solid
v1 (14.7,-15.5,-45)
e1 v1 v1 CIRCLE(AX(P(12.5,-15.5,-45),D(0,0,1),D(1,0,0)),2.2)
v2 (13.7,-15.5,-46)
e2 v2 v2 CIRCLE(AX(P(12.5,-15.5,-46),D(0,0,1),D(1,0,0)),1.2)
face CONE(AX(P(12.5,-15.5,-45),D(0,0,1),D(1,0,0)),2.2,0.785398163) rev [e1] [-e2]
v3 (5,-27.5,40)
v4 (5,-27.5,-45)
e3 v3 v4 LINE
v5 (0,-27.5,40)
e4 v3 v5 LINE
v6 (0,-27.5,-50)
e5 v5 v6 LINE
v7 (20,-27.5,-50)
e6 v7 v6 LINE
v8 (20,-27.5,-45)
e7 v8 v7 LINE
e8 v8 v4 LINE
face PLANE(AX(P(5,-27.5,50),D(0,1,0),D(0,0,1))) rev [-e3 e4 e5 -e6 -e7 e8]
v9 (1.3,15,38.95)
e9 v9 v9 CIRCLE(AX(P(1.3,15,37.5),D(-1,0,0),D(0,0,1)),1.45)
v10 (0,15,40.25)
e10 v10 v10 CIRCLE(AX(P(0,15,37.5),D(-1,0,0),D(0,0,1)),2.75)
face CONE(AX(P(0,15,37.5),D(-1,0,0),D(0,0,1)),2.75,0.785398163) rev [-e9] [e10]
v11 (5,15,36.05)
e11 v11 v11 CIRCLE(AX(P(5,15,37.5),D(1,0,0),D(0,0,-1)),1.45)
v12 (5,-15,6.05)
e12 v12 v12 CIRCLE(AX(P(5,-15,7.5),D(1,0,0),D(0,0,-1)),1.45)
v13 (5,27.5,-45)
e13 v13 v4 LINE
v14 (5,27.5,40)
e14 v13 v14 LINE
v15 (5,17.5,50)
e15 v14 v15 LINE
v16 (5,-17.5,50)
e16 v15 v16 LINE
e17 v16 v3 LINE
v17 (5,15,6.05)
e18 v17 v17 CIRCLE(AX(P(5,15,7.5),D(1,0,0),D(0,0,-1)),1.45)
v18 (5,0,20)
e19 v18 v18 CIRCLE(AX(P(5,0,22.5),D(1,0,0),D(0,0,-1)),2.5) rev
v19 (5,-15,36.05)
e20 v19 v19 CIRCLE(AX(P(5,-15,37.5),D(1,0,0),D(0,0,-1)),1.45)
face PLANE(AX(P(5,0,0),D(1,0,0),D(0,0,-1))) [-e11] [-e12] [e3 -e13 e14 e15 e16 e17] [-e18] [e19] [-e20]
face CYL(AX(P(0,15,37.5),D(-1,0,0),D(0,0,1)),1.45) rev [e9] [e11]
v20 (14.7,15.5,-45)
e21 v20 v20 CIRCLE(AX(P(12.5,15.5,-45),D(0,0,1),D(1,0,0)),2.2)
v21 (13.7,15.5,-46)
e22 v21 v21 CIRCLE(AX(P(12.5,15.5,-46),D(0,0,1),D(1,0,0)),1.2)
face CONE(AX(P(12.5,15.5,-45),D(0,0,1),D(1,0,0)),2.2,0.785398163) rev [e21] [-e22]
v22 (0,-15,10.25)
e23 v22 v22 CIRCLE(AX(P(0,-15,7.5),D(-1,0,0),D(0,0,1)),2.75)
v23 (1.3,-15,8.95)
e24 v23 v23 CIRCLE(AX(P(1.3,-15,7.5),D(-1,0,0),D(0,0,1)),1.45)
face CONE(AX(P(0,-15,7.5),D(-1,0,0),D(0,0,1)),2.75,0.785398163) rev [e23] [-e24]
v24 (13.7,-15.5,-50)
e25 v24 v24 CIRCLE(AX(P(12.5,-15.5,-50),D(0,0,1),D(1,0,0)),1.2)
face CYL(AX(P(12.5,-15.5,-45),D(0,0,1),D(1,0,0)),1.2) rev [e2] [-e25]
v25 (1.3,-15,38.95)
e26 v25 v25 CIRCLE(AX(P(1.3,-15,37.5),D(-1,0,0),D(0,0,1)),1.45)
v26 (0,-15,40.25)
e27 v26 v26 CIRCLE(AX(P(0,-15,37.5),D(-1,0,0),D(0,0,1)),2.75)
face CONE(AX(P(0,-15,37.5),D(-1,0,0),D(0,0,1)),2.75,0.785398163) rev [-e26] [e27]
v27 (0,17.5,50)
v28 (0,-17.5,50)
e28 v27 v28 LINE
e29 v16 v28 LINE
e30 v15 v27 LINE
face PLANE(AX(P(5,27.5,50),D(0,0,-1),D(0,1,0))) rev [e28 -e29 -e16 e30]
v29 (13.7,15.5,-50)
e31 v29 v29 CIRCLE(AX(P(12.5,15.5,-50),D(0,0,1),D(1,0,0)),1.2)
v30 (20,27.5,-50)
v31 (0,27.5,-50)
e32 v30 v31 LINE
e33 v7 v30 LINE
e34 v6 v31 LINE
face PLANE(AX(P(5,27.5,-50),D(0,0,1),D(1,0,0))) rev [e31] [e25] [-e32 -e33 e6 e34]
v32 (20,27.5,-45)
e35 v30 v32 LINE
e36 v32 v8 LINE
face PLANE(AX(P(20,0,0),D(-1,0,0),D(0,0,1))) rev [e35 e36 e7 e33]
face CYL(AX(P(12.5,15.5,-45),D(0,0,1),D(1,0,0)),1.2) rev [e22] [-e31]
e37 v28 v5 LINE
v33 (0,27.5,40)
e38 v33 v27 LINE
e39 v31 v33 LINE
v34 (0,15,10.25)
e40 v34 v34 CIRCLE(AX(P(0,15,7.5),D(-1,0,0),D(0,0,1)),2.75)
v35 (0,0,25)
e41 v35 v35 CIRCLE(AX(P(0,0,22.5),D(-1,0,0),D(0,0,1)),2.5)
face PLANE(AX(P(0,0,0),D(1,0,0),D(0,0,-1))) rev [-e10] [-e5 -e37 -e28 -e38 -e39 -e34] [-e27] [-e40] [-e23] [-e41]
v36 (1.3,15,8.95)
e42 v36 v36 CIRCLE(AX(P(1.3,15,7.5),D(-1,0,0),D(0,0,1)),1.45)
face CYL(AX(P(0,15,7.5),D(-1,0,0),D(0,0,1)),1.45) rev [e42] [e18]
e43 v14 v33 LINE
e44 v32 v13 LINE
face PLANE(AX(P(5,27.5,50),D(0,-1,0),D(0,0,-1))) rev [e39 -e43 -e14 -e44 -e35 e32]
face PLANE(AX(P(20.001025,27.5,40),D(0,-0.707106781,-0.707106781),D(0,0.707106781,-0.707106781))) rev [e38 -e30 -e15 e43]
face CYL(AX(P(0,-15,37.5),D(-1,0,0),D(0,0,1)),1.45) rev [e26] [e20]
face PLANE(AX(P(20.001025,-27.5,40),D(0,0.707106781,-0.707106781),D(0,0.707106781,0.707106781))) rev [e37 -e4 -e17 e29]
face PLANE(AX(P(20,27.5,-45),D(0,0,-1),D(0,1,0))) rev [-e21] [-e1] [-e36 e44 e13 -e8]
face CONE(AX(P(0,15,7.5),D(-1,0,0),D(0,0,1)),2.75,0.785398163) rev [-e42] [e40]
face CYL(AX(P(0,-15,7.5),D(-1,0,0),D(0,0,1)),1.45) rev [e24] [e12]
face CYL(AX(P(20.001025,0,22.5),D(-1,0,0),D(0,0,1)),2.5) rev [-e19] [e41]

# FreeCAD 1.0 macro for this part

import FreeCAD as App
import Part
import Sketcher

V = App.Vector
Q = App.Units.Quantity

doc = App.newDocument("Part")
body = doc.addObject("PartDesign::Body", "Body")

# Sketch on YZ plane
sketch1 = doc.addObject("Sketcher::SketchObject", "Sketch")
body.addObject(sketch1)
sketch1.AttachmentSupport = (doc.YZ_Plane, [""])
sketch1.MapMode = "FlatFace"
sketch1.addGeometry([
    Part.LineSegment(V(28, 50, 0), V(-28, 50, 0)),
    Part.LineSegment(V(-28, 50, 0), V(-28, -50, 0)),
    Part.LineSegment(V(-28, -50, 0), V(28, -50, 0)),
    Part.LineSegment(V(28, -50, 0), V(28, 50, 0)),
], False)
sketch1.addConstraint([
    Sketcher.Constraint("Coincident", 0, 2, 1, 1),
    Sketcher.Constraint("Coincident", 1, 2, 2, 1),
    Sketcher.Constraint("Coincident", 2, 2, 3, 1),
    Sketcher.Constraint("Coincident", 3, 2, 0, 1),
    Sketcher.Constraint("Horizontal", 0),
    Sketcher.Constraint("Vertical", 1),
    Sketcher.Constraint("Horizontal", 2),
    Sketcher.Constraint("Vertical", 3),
    Sketcher.Constraint("Symmetric", 0, 2, 2, 2, -1, 1),
    Sketcher.Constraint("DistanceX", 0, 2, 0, 1, Q("55 mm")),
    Sketcher.Constraint("DistanceY", 1, 2, 1, 1, Q("100 mm")),
])
pad1 = doc.addObject("PartDesign::Pad", "Pad")
body.addObject(pad1)
pad1.Profile = sketch1
pad1.Length = 5

# Sketch on YZ plane
sketch2 = doc.addObject("Sketcher::SketchObject", "Sketch001")
body.addObject(sketch2)
sketch2.AttachmentSupport = (doc.YZ_Plane, [""])
sketch2.MapMode = "FlatFace"
sketch2.AttachmentOffset = App.Placement(V(0, 0, 5), App.Rotation())
sketch2.addGeometry([
    Part.LineSegment(V(28, -45, 0), V(-28, -45, 0)),
    Part.LineSegment(V(-28, -45, 0), V(-28, -50, 0)),
    Part.LineSegment(V(-28, -50, 0), V(28, -50, 0)),
    Part.LineSegment(V(28, -50, 0), V(28, -45, 0)),
], False)
sketch2.addConstraint([
    Sketcher.Constraint("Coincident", 0, 2, 1, 1),
    Sketcher.Constraint("Coincident", 1, 2, 2, 1),
    Sketcher.Constraint("Coincident", 2, 2, 3, 1),
    Sketcher.Constraint("Coincident", 3, 2, 0, 1),
    Sketcher.Constraint("Horizontal", 0),
    Sketcher.Constraint("Vertical", 1),
    Sketcher.Constraint("Horizontal", 2),
    Sketcher.Constraint("Vertical", 3),
    Sketcher.Constraint("DistanceX", 0, 2, 0, 1, Q("55 mm")),
    Sketcher.Constraint("DistanceY", 1, 2, 1, 1, Q("5 mm")),
    Sketcher.Constraint("DistanceY", 0, 2, -1, 1, Q("45 mm")),
    Sketcher.Constraint("DistanceX", 0, 2, -1, 1, Q("27.5 mm")),
])
pad2 = doc.addObject("PartDesign::Pad", "Pad001")
body.addObject(pad2)
pad2.Profile = sketch2
pad2.Length = 15

# Sketch on YZ plane
sketch3 = doc.addObject("Sketcher::SketchObject", "Sketch002")
body.addObject(sketch3)
sketch3.AttachmentSupport = (doc.YZ_Plane, [""])
sketch3.MapMode = "FlatFace"
sketch3.addGeometry([
    Part.LineSegment(V(28, 50, 0), V(28, 40, 0)),
    Part.LineSegment(V(28, 40, 0), V(18, 50, 0)),
    Part.LineSegment(V(18, 50, 0), V(28, 50, 0)),
], False)
sketch3.addConstraint([
    Sketcher.Constraint("Coincident", 0, 2, 1, 1),
    Sketcher.Constraint("Coincident", 1, 2, 2, 1),
    Sketcher.Constraint("Coincident", 2, 2, 0, 1),
    Sketcher.Constraint("Vertical", 0),
    Sketcher.Constraint("Horizontal", 2),
    Sketcher.Constraint("Equal", 2, 0),
    Sketcher.Constraint("DistanceX", 2, 1, 2, 2, Q("10 mm")),
    Sketcher.Constraint("DistanceY", -1, 1, 0, 2, Q("40 mm")),
    Sketcher.Constraint("DistanceX", -1, 1, 0, 2, Q("27.5 mm")),
])
pocket1 = doc.addObject("PartDesign::Pocket", "Pocket")
body.addObject(pocket1)
pocket1.Profile = sketch3
pocket1.Type = "UpToFirst"
pocket1.Reversed = True

# Sketch on YZ plane
sketch4 = doc.addObject("Sketcher::SketchObject", "Sketch003")
body.addObject(sketch4)
sketch4.AttachmentSupport = (doc.YZ_Plane, [""])
sketch4.MapMode = "FlatFace"
sketch4.addGeometry([
    Part.LineSegment(V(-28, 40, 0), V(-28, 50, 0)),
    Part.LineSegment(V(-28, 50, 0), V(-18, 50, 0)),
    Part.LineSegment(V(-18, 50, 0), V(-28, 40, 0)),
], False)
sketch4.addConstraint([
    Sketcher.Constraint("Coincident", 0, 2, 1, 1),
    Sketcher.Constraint("Coincident", 1, 2, 2, 1),
    Sketcher.Constraint("Coincident", 2, 2, 0, 1),
    Sketcher.Constraint("Vertical", 0),
    Sketcher.Constraint("Horizontal", 1),
    Sketcher.Constraint("Equal", 1, 0),
    Sketcher.Constraint("DistanceX", 1, 1, 1, 2, Q("10 mm")),
    Sketcher.Constraint("DistanceY", -1, 1, 0, 2, Q("50 mm")),
    Sketcher.Constraint("DistanceX", 0, 2, -1, 1, Q("27.5 mm")),
])
pocket2 = doc.addObject("PartDesign::Pocket", "Pocket001")
body.addObject(pocket2)
pocket2.Profile = sketch4
pocket2.Type = "UpToFirst"
pocket2.Reversed = True

# Sketch on XY plane
sketch5 = doc.addObject("Sketcher::SketchObject", "Sketch004")
body.addObject(sketch5)
sketch5.AttachmentSupport = (doc.XY_Plane, [""])
sketch5.MapMode = "FlatFace"
sketch5.AttachmentOffset = App.Placement(V(0, 0, -45), App.Rotation())
sketch5.addGeometry([
    Part.Circle(V(12.5, 15.5, 0), V(0, 0, 1), 1.2),
    Part.Circle(V(12.5, -15.5, 0), V(0, 0, 1), 1.2),
], False)
sketch5.addConstraint([
    Sketcher.Constraint("Equal", 0, 1),
    Sketcher.Constraint("Symmetric", 0, 3, 1, 3, -1),
    Sketcher.Constraint("Diameter", 0, Q("2.4 mm")),
    Sketcher.Constraint("DistanceY", 1, 3, 0, 3, Q("31 mm")),
    Sketcher.Constraint("DistanceX", -1, 1, 0, 3, Q("12.5 mm")),
])
doc.recompute()
hole = doc.addObject("PartDesign::Hole", "Hole")
body.addObject(hole)
hole.Profile = sketch5
hole.ThreadType = "None"
hole.Diameter = 2.4
hole.DepthType = "ThroughAll"
hole.HoleCutType = "Countersink"
hole.HoleCutDiameter = 4.4
hole.HoleCutCountersinkAngle = 90

# Sketch on YZ plane
sketch6 = doc.addObject("Sketcher::SketchObject", "Sketch005")
body.addObject(sketch6)
sketch6.AttachmentSupport = (doc.YZ_Plane, [""])
sketch6.MapMode = "FlatFace"
sketch6.addGeometry(Part.Circle(V(0, 22.5, 0), V(0, 0, 1), 2.5), False)
sketch6.addConstraint([
    Sketcher.Constraint("PointOnObject", 0, 3, -2),
    Sketcher.Constraint("Diameter", 0, Q("5 mm")),
    Sketcher.Constraint("DistanceY", -1, 1, 0, 3, Q("22.5 mm")),
])
pocket3 = doc.addObject("PartDesign::Pocket", "Pocket002")
body.addObject(pocket3)
pocket3.Profile = sketch6
pocket3.Type = "UpToFirst"
pocket3.Reversed = True

# Sketch on YZ plane
sketch7 = doc.addObject("Sketcher::SketchObject", "Sketch006")
body.addObject(sketch7)
sketch7.AttachmentSupport = (doc.YZ_Plane, [""])
sketch7.MapMode = "FlatFace"
sketch7.addGeometry([
    Part.Circle(V(15, 7.5, 0), V(0, 0, 1), 1.4),
    Part.Circle(V(-15, 7.5, 0), V(0, 0, 1), 1.4),
    Part.Circle(V(-15, 37.5, 0), V(0, 0, 1), 1.4),
    Part.Circle(V(15, 37.5, 0), V(0, 0, 1), 1.4),
], False)
sketch7.addConstraint([
    Sketcher.Constraint("Equal", 0, 1),
    Sketcher.Constraint("Equal", 1, 2),
    Sketcher.Constraint("Equal", 2, 3),
    Sketcher.Constraint("Symmetric", 0, 3, 1, 3, -2),
    Sketcher.Constraint("Symmetric", 2, 3, 3, 3, -2),
    Sketcher.Constraint("Vertical", 1, 3, 2, 3),
    Sketcher.Constraint("Diameter", 0, Q("2.9 mm")),
    Sketcher.Constraint("DistanceX", -1, 1, 0, 3, Q("15 mm")),
    Sketcher.Constraint("DistanceY", 1, 3, 2, 3, Q("30 mm")),
    Sketcher.Constraint("DistanceY", -1, 1, 0, 3, Q("7.5 mm")),
])
doc.recompute()
hole2 = doc.addObject("PartDesign::Hole", "Hole001")
body.addObject(hole2)
hole2.Profile = sketch7
hole2.ThreadType = "None"
hole2.Diameter = 2.9
hole2.DepthType = "Dimension"
hole2.Depth = 5
hole2.DrillPoint = "Flat"
hole2.HoleCutType = "Countersink"
hole2.HoleCutDiameter = 5.5
hole2.HoleCutCountersinkAngle = 90
hole2.Reversed = True

doc.recompute()
